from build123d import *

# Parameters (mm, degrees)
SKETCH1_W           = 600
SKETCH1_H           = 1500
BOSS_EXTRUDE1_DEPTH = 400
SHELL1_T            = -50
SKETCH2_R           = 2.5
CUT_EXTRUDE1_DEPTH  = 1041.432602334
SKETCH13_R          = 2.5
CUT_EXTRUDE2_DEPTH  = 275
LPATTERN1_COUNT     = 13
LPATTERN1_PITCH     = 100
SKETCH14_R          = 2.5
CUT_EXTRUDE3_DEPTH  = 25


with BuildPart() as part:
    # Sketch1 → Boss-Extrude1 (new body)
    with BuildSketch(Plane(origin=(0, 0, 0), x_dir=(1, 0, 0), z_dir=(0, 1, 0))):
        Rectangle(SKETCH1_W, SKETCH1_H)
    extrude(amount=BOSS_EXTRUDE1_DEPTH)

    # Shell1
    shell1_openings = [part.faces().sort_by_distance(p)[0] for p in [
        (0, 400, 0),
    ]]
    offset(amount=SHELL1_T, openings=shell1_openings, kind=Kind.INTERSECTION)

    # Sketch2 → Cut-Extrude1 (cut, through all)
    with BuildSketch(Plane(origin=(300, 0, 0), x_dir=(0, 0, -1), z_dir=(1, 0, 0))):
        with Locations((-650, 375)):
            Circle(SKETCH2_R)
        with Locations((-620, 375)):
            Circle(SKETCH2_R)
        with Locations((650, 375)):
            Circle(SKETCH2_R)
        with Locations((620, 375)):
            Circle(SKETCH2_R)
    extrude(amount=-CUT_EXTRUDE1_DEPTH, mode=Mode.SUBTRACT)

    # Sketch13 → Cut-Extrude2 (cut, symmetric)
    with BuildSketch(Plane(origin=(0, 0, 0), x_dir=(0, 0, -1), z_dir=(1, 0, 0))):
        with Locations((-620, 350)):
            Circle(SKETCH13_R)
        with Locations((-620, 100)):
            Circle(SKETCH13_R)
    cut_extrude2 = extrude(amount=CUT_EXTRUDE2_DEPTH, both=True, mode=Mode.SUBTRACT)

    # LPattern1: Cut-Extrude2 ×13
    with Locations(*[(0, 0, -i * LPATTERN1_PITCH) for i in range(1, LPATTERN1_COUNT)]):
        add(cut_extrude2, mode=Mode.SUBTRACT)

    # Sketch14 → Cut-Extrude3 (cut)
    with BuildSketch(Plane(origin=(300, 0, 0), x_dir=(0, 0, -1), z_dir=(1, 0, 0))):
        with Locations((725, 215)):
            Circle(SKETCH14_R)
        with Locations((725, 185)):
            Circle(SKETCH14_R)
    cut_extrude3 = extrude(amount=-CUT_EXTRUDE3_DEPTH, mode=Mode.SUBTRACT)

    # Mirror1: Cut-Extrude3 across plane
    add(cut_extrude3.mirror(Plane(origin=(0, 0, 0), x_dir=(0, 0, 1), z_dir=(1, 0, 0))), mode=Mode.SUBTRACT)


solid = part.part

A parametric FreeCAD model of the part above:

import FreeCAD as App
import Part
import Sketcher
from FreeCAD import Vector


def faces_at(feature, points):
    """Names of the faces that lie closest to the given points."""
    faces = feature.Shape.Faces
    near = lambda p: min(range(len(faces)), key=lambda i: faces[i].distToShape(Part.Vertex(*p))[0])
    return sorted({f"Face{near(p) + 1}" for p in points})


def add_polygon(sketch, points):
    """Adds a closed chain of lines whose ends are joined by coincident constraints."""
    first, n = sketch.GeometryCount, len(points)
    for a, b in zip(points, points[1:] + points[:1]):
        sketch.addGeometry(Part.LineSegment(App.Vector(*a, 0), App.Vector(*b, 0)), False)
    for i in range(n):
        sketch.addConstraint(Sketcher.Constraint("Coincident", first + i, 2, first + (i + 1) % n, 1))

doc = App.newDocument("Part")
body = doc.addObject("PartDesign::Body", "Body")

# Sketch on XZ plane
sketch1 = doc.addObject("Sketcher::SketchObject", "Sketch")
body.addObject(sketch1)
sketch1.AttachmentSupport = (doc.XZ_Plane, [""])
sketch1.MapMode = "FlatFace"
add_polygon(sketch1, [(-300, -750), (-300, 750), (300, 750), (300, -750)])  # lines 0-3
sketch1.addConstraint(Sketcher.Constraint("Vertical", 0))
sketch1.addConstraint(Sketcher.Constraint("Horizontal", 1))
sketch1.addConstraint(Sketcher.Constraint("Vertical", 2))
sketch1.addConstraint(Sketcher.Constraint("Horizontal", 3))
sketch1.addConstraint(Sketcher.Constraint("Symmetric", 0, 2, 2, 2, -1, 1))
sketch1.addConstraint(Sketcher.Constraint("DistanceX", 1, 1, 1, 2, 600.0))
sketch1.addConstraint(Sketcher.Constraint("DistanceY", 0, 1, 0, 2, 1500.0))
pad1 = doc.addObject("PartDesign::Pad", "Pad")
body.addObject(pad1)
pad1.Profile = sketch1
pad1.Length = 400
pad1.Reversed = True
doc.recompute()

thickness = doc.addObject("PartDesign::Thickness", "Thickness")
body.addObject(thickness)
thickness.Base = (pad1, faces_at(pad1, [(0, 400, 0)]))
thickness.Value = 50
thickness.Reversed = True
thickness.Join = "Intersection"

# Sketch on YZ plane
sketch2 = doc.addObject("Sketcher::SketchObject", "Sketch001")
body.addObject(sketch2)
sketch2.AttachmentSupport = (doc.YZ_Plane, [""])
sketch2.MapMode = "FlatFace"
sketch2.AttachmentOffset = App.Placement(Vector(0, 0, 300), App.Rotation())
sketch2.addGeometry(Part.Circle(Vector(375, 650, 0), Vector(0, 0, 1), 2.5), False)
sketch2.addGeometry(Part.Circle(Vector(375, 620, 0), Vector(0, 0, 1), 2.5), False)
sketch2.addGeometry(Part.Circle(Vector(375, -650, 0), Vector(0, 0, 1), 2.5), False)
sketch2.addGeometry(Part.Circle(Vector(375, -620, 0), Vector(0, 0, 1), 2.5), False)
sketch2.addConstraint(Sketcher.Constraint("Equal", 0, 1))
sketch2.addConstraint(Sketcher.Constraint("Equal", 1, 2))
sketch2.addConstraint(Sketcher.Constraint("Equal", 2, 3))
sketch2.addConstraint(Sketcher.Constraint("Symmetric", 0, 3, 2, 3, -1))
sketch2.addConstraint(Sketcher.Constraint("Symmetric", 1, 3, 3, 3, -1))
sketch2.addConstraint(Sketcher.Constraint("Vertical", 0, 3, 1, 3))
sketch2.addConstraint(Sketcher.Constraint("Diameter", 0, 5.0))
sketch2.addConstraint(Sketcher.Constraint("DistanceX", -1, 1, 0, 3, 375.0))
sketch2.addConstraint(Sketcher.Constraint("DistanceY", -1, 1, 0, 3, 650.0))
sketch2.addConstraint(Sketcher.Constraint("DistanceY", -1, 1, 1, 3, 620.0))
pocket1 = doc.addObject("PartDesign::Pocket", "Pocket")
body.addObject(pocket1)
pocket1.Profile = sketch2
pocket1.Type = "ThroughAll"

# Sketch on YZ plane
sketch3 = doc.addObject("Sketcher::SketchObject", "Sketch002")
body.addObject(sketch3)
sketch3.AttachmentSupport = (doc.YZ_Plane, [""])
sketch3.MapMode = "FlatFace"
sketch3.addGeometry(Part.Circle(Vector(350, 620, 0), Vector(0, 0, 1), 2.5), False)
sketch3.addGeometry(Part.Circle(Vector(100, 620, 0), Vector(0, 0, 1), 2.5), False)
sketch3.addConstraint(Sketcher.Constraint("Equal", 0, 1))
sketch3.addConstraint(Sketcher.Constraint("Horizontal", 0, 3, 1, 3))
sketch3.addConstraint(Sketcher.Constraint("Diameter", 0, 5.0))
sketch3.addConstraint(Sketcher.Constraint("DistanceX", -1, 1, 0, 3, 350.0))
sketch3.addConstraint(Sketcher.Constraint("DistanceY", -1, 1, 0, 3, 620.0))
sketch3.addConstraint(Sketcher.Constraint("DistanceX", -1, 1, 1, 3, 100.0))
pocket2 = doc.addObject("PartDesign::Pocket", "Pocket001")
body.addObject(pocket2)
pocket2.Profile = sketch3
pocket2.Length = 550
pocket2.Midplane = True
doc.recompute()

linearpattern = doc.addObject("PartDesign::LinearPattern", "LinearPattern")
body.addObject(linearpattern)
linearpattern.Originals = [pocket2]
linearpattern.Direction = (doc.Z_Axis, [""])
linearpattern.Mode = "offset"
linearpattern.Offset = 100
linearpattern.Occurrences = 13
linearpattern.Reversed = True
body.Tip = linearpattern

# Sketch on YZ plane
sketch4 = doc.addObject("Sketcher::SketchObject", "Sketch003")
body.addObject(sketch4)
sketch4.AttachmentSupport = (doc.YZ_Plane, [""])
sketch4.MapMode = "FlatFace"
sketch4.AttachmentOffset = App.Placement(Vector(0, 0, 300), App.Rotation())
sketch4.addGeometry(Part.Circle(Vector(215, -725, 0), Vector(0, 0, 1), 2.5), False)
sketch4.addGeometry(Part.Circle(Vector(185, -725, 0), Vector(0, 0, 1), 2.5), False)
sketch4.addConstraint(Sketcher.Constraint("Equal", 0, 1))
sketch4.addConstraint(Sketcher.Constraint("Horizontal", 0, 3, 1, 3))
sketch4.addConstraint(Sketcher.Constraint("Diameter", 0, 5.0))
sketch4.addConstraint(Sketcher.Constraint("DistanceX", -1, 1, 0, 3, 215.0))
sketch4.addConstraint(Sketcher.Constraint("DistanceY", 0, 3, -1, 1, 725.0))
sketch4.addConstraint(Sketcher.Constraint("DistanceX", -1, 1, 1, 3, 185.0))
pocket3 = doc.addObject("PartDesign::Pocket", "Pocket002")
body.addObject(pocket3)
pocket3.Profile = sketch4
pocket3.Length = 25
doc.recompute()

mirrored = doc.addObject("PartDesign::Mirrored", "Mirrored")
body.addObject(mirrored)
mirrored.Originals = [pocket3]
mirrored.MirrorPlane = (doc.YZ_Plane, [""])
body.Tip = mirrored

doc.recompute()
